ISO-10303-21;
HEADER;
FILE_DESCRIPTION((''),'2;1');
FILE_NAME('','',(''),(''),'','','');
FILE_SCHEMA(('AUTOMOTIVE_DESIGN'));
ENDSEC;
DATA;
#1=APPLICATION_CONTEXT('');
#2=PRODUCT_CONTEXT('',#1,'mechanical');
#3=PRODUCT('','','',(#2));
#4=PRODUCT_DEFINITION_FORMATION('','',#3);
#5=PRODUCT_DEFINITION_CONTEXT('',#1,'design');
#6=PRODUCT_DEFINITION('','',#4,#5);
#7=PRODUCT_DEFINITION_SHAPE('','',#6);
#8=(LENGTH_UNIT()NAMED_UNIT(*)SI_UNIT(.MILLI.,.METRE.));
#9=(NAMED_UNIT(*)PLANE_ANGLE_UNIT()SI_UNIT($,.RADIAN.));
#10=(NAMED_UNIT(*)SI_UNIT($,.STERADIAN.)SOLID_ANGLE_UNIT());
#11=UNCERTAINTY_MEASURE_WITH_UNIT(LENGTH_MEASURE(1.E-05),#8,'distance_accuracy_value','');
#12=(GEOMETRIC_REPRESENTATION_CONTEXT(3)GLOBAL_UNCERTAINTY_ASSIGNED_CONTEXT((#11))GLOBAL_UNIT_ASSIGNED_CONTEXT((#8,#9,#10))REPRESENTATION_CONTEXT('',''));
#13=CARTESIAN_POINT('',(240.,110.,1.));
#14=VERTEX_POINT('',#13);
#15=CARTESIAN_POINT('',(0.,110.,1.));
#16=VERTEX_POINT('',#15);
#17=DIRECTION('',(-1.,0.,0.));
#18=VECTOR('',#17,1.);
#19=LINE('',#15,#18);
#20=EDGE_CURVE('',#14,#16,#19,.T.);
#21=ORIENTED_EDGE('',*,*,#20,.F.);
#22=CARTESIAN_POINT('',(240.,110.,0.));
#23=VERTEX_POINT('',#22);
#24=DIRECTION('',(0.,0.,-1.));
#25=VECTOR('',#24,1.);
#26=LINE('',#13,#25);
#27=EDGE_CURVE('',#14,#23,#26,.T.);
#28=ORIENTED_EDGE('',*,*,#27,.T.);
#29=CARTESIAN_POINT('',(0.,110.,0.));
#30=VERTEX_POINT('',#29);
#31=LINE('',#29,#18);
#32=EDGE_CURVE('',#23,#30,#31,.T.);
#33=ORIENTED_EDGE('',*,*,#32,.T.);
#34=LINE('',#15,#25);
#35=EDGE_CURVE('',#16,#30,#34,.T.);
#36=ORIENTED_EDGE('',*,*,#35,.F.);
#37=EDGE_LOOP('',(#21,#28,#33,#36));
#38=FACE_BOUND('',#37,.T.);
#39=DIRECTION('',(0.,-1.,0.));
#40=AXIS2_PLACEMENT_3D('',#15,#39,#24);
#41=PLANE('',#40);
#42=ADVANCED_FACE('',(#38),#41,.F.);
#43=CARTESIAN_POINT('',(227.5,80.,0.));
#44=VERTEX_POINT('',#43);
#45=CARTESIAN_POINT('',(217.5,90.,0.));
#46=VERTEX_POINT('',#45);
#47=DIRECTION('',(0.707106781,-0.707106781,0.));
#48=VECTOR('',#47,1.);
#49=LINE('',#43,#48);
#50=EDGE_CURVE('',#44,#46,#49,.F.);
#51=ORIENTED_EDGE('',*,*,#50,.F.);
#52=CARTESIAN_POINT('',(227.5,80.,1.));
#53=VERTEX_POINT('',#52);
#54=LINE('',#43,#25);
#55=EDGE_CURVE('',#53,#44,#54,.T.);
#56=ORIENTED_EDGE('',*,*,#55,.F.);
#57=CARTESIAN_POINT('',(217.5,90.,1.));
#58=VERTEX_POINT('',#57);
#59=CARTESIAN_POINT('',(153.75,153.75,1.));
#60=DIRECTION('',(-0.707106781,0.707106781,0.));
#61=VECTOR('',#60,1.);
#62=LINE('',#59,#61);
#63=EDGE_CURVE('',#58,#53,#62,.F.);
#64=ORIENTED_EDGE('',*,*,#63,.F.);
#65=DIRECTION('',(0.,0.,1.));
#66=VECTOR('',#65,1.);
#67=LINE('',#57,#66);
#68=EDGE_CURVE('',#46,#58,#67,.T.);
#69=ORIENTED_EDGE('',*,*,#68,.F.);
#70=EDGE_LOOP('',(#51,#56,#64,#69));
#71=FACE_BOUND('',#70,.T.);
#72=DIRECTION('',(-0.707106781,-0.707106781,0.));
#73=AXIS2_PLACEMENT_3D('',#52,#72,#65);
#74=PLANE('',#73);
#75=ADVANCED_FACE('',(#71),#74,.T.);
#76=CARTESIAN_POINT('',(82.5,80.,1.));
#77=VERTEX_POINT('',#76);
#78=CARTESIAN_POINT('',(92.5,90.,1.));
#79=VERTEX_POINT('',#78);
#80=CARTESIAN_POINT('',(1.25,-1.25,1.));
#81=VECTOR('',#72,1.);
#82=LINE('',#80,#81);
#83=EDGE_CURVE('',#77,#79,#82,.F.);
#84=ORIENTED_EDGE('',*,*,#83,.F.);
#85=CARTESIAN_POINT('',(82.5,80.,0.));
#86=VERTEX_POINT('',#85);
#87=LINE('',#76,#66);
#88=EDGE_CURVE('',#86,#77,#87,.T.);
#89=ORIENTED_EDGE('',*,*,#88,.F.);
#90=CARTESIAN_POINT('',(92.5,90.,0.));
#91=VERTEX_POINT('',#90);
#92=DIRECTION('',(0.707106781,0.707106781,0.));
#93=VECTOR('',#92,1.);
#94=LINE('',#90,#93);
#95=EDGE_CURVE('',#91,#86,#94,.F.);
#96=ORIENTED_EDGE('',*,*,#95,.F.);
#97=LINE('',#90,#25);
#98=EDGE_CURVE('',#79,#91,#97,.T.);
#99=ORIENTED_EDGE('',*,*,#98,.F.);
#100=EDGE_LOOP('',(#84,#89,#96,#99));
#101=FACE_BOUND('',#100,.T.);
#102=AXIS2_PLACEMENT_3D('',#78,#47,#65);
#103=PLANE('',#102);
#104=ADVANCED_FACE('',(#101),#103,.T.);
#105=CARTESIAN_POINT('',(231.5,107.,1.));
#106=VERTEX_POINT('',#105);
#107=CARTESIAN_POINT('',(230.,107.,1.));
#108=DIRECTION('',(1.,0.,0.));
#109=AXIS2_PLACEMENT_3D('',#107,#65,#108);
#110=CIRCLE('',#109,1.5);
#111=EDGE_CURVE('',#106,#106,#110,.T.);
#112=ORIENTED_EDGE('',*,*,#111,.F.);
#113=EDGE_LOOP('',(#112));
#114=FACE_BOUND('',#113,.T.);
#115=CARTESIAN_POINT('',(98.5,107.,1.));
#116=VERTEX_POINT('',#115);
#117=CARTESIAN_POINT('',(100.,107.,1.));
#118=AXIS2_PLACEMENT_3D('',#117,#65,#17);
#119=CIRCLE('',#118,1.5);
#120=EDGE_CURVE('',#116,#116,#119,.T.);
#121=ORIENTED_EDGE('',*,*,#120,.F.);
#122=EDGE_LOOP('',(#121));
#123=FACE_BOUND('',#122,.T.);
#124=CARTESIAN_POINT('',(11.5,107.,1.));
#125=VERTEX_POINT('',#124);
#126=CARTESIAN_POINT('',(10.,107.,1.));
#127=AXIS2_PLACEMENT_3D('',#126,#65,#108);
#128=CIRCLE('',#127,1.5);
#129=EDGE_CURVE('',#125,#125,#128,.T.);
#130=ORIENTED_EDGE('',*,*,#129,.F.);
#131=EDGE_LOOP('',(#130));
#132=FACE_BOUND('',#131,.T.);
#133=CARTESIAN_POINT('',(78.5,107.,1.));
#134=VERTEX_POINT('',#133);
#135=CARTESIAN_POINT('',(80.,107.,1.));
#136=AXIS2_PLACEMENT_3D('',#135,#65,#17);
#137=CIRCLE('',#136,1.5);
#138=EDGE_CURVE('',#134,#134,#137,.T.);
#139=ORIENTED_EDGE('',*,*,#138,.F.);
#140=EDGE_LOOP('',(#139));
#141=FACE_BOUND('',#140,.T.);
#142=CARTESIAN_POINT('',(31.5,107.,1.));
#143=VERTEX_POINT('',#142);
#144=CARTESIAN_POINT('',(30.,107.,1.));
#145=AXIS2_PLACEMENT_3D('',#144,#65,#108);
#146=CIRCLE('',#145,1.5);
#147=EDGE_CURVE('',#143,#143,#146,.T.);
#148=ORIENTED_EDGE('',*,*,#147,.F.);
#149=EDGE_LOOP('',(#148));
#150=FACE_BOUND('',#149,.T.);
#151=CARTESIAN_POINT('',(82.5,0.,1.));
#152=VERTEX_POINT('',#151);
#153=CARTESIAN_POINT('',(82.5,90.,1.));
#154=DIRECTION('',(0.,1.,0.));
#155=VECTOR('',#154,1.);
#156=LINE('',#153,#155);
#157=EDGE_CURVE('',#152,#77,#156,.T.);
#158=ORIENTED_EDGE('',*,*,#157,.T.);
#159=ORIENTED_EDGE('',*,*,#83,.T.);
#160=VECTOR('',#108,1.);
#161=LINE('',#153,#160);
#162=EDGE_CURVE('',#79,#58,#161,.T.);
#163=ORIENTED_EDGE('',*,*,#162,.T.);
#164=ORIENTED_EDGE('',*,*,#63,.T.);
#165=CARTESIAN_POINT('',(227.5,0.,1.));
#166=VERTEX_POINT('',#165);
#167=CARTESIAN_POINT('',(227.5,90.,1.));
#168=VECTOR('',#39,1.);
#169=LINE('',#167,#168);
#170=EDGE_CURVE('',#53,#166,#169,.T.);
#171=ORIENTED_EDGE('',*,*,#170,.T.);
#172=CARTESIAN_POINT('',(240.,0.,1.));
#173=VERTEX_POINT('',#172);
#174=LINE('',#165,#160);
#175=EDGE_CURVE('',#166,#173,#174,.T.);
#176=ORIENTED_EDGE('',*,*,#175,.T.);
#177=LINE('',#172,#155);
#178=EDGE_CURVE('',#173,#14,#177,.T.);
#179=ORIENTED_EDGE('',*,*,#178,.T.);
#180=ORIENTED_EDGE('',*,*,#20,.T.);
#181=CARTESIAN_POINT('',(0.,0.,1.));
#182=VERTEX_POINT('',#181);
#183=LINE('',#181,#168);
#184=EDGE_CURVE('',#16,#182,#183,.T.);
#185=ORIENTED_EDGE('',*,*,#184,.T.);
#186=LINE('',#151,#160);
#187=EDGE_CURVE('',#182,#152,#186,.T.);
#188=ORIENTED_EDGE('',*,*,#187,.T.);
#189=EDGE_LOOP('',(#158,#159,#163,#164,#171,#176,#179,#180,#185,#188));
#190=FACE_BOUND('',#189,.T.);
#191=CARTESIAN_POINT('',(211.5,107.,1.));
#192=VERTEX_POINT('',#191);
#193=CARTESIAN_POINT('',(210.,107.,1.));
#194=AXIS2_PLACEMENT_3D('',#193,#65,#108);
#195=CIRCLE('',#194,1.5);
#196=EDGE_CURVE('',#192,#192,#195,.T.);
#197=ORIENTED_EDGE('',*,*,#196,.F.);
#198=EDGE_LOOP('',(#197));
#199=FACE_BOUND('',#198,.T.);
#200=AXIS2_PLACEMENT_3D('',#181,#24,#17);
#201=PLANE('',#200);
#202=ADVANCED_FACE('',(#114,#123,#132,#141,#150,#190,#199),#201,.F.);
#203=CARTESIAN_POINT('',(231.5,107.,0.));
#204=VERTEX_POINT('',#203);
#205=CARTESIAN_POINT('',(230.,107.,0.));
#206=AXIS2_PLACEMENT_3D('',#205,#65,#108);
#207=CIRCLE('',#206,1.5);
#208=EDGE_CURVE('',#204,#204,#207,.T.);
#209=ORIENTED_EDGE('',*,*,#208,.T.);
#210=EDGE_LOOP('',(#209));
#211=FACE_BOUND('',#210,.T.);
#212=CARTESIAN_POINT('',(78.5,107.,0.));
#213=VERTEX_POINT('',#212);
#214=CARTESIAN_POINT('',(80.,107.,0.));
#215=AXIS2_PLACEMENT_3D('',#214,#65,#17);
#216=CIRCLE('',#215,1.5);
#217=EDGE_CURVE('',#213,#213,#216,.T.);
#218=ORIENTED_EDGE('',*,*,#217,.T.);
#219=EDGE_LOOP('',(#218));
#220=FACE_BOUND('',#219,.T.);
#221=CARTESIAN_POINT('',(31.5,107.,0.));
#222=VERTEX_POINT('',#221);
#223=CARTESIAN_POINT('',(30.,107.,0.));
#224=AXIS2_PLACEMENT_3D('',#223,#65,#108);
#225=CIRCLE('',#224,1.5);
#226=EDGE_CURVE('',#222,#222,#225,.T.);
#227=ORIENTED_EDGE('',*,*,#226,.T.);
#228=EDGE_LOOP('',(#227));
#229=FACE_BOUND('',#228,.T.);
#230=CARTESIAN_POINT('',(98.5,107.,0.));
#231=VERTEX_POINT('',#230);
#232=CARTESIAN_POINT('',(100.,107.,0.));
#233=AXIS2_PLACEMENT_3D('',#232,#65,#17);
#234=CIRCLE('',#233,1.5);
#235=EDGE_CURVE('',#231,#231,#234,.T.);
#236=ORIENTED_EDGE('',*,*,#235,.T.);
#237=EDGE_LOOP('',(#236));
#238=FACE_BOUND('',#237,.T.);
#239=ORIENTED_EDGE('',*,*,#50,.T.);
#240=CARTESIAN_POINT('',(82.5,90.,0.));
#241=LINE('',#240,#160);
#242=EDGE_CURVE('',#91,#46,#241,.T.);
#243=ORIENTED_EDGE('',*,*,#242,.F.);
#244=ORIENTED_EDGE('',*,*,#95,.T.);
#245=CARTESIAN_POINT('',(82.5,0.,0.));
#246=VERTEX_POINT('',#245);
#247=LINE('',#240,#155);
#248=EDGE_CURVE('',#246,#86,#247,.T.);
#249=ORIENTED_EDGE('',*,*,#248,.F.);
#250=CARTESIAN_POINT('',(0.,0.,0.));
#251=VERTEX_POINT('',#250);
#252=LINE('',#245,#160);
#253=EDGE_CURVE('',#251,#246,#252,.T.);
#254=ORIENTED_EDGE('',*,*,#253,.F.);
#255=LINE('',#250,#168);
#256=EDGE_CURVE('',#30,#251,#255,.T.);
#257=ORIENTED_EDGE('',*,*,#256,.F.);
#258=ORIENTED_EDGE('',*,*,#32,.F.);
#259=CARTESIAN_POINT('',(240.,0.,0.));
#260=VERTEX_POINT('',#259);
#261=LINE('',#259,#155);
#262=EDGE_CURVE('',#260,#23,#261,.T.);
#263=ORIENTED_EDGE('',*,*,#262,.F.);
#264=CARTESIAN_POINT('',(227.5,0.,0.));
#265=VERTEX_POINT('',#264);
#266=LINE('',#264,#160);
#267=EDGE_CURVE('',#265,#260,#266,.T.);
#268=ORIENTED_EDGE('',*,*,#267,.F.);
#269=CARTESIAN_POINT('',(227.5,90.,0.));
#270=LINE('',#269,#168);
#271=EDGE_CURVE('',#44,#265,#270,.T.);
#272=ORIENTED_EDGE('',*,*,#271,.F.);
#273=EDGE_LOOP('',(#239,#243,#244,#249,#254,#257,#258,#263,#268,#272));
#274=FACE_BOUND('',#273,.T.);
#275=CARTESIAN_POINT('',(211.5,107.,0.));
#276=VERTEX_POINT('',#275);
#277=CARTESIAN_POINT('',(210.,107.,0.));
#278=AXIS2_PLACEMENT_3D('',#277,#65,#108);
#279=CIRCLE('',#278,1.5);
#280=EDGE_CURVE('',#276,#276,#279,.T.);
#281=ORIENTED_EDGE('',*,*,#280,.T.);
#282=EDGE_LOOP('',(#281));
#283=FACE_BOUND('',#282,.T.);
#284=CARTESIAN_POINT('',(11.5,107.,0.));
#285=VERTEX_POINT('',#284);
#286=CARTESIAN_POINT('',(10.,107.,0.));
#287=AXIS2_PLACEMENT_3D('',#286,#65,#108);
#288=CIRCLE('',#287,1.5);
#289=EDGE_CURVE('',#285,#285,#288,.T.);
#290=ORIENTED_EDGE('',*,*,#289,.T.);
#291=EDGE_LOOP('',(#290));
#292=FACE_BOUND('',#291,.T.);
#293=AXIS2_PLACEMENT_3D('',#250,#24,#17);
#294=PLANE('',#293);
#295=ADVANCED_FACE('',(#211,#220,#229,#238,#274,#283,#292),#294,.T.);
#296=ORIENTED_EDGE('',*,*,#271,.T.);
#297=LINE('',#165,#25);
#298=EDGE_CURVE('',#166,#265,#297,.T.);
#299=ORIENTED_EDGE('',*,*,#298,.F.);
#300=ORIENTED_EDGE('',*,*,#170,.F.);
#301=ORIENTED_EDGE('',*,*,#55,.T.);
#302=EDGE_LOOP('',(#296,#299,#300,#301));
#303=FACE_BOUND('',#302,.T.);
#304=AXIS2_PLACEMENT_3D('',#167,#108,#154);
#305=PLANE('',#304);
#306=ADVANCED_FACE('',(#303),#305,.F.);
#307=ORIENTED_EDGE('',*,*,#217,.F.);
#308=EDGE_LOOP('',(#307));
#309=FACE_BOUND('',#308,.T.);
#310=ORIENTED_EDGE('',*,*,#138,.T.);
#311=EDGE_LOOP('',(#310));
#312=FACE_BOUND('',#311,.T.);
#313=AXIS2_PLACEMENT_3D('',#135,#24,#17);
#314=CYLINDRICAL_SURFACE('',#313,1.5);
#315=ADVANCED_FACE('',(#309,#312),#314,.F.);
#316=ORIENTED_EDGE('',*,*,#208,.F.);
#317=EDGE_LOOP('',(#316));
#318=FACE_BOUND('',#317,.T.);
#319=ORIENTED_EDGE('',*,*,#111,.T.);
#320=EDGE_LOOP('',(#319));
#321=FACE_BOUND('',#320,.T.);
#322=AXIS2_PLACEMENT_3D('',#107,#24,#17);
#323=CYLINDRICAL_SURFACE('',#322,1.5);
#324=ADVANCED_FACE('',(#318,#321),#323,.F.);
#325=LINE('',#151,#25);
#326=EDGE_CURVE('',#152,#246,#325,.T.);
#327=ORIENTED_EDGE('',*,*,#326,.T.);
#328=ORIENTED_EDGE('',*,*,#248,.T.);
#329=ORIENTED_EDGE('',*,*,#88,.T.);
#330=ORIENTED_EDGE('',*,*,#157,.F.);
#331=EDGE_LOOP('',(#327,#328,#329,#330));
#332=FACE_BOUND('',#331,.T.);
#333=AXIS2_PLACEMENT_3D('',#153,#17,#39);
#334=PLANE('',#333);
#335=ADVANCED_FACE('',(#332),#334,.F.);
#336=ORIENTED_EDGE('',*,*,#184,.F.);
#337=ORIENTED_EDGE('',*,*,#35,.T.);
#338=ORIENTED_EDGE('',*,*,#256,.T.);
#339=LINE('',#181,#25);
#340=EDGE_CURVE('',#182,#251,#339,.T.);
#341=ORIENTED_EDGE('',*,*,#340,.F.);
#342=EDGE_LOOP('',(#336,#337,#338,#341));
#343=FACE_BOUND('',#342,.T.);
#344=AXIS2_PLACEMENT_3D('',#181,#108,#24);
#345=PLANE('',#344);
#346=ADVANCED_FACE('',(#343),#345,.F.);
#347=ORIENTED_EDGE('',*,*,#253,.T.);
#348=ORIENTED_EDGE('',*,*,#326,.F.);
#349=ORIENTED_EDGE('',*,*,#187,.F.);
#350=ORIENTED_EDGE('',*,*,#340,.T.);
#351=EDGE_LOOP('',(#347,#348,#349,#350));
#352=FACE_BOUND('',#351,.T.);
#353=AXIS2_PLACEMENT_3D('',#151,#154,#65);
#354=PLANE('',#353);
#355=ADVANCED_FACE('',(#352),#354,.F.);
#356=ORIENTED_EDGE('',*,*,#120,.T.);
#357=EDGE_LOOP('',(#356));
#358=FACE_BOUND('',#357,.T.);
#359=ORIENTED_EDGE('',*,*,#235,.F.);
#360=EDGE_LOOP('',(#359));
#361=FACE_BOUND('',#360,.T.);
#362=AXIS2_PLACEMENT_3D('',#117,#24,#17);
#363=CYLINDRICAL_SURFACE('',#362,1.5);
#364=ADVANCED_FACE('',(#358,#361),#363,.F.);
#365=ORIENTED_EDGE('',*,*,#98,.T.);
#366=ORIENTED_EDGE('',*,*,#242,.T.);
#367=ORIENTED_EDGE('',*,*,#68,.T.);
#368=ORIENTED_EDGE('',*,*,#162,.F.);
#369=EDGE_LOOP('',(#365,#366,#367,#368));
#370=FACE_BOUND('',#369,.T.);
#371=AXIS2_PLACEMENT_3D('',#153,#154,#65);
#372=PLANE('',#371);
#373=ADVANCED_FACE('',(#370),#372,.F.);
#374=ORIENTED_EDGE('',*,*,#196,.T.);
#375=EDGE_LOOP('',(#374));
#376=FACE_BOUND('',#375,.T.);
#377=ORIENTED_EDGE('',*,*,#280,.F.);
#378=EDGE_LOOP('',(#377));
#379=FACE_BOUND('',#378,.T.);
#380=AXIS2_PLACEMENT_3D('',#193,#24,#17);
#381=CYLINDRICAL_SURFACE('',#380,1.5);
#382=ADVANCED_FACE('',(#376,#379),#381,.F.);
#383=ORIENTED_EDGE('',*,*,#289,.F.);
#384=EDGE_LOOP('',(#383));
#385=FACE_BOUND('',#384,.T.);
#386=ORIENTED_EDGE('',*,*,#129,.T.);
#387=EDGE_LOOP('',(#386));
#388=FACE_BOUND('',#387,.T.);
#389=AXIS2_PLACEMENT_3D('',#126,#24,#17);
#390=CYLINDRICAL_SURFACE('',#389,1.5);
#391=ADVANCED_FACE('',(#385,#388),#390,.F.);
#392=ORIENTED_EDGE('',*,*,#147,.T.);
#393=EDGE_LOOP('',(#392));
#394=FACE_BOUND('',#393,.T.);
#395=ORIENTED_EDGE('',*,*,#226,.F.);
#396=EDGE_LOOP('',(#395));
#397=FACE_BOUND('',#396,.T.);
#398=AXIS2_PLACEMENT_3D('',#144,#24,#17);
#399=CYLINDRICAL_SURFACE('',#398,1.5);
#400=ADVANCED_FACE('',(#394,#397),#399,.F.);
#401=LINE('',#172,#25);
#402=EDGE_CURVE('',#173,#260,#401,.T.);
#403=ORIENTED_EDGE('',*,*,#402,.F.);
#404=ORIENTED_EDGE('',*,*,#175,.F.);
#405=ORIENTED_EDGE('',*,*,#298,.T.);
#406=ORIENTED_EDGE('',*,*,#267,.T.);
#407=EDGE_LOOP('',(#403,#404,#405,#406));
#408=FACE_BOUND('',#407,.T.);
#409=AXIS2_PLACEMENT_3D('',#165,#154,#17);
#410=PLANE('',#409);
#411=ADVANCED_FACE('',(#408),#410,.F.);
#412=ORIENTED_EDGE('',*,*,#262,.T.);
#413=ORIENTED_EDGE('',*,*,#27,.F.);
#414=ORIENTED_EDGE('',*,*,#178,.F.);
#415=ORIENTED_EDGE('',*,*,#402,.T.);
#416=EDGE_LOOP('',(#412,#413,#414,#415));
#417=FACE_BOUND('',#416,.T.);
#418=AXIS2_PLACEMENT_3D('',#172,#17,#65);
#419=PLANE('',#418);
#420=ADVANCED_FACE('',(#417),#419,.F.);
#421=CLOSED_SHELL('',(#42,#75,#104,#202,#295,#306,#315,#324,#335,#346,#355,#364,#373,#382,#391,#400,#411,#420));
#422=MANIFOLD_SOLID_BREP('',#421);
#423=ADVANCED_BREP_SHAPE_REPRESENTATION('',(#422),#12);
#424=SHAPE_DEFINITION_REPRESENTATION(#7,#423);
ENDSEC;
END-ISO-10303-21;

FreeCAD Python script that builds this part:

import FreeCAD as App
import Part
import Sketcher

V = App.Vector
Q = App.Units.Quantity


def edges_at(feature, points):
    """Names of the edges that pass closest to the given points."""
    edges = feature.Shape.Edges
    near = lambda p: min(range(len(edges)), key=lambda i: edges[i].distToShape(Part.Vertex(*p))[0])
    return sorted({f"Edge{near(p) + 1}" for p in points})


def add_polygon(sketch, points):
    """Adds a closed chain of lines whose ends are joined by coincident constraints."""
    first, n = sketch.GeometryCount, len(points)
    for a, b in zip(points, points[1:] + points[:1]):
        sketch.addGeometry(Part.LineSegment(App.Vector(*a, 0), App.Vector(*b, 0)), False)
    for i in range(n):
        sketch.addConstraint(Sketcher.Constraint("Coincident", first + i, 2, first + (i + 1) % n, 1))

doc = App.newDocument("Part")
body = doc.addObject("PartDesign::Body", "Body")

# Sketch on XY plane
sketch1 = body.newObject("Sketcher::SketchObject", "Sketch")
sketch1.AttachmentSupport = (doc.getObject("XY_Plane"), [""])
sketch1.MapMode = "FlatFace"
add_polygon(sketch1, [(0, 110), (0, 0), (82.5, 0), (82.5, 90), (227.5, 90), (227.5, 0), (240, 0), (240, 110)])  # lines 0-7
sketch1.addGeometry(Part.Circle(V(230, 107, 0), V(0, 0, 1), 1.5), False)  # 8
sketch1.addGeometry(Part.Circle(V(210, 107, 0), V(0, 0, 1), 1.5), False)  # 9
sketch1.addGeometry(Part.Circle(V(100, 107, 0), V(0, 0, 1), 1.5), False)  # 10
sketch1.addGeometry(Part.Circle(V(80, 107, 0), V(0, 0, 1), 1.5), False)  # 11
sketch1.addGeometry(Part.Circle(V(30, 107, 0), V(0, 0, 1), 1.5), False)  # 12
sketch1.addGeometry(Part.Circle(V(10, 107, 0), V(0, 0, 1), 1.5), False)  # 13
sketch1.addConstraint(Sketcher.Constraint("Vertical", 0))
sketch1.addConstraint(Sketcher.Constraint("Horizontal", 1))
sketch1.addConstraint(Sketcher.Constraint("Vertical", 2))
sketch1.addConstraint(Sketcher.Constraint("Horizontal", 3))
sketch1.addConstraint(Sketcher.Constraint("Vertical", 4))
sketch1.addConstraint(Sketcher.Constraint("Horizontal", 5))
sketch1.addConstraint(Sketcher.Constraint("Vertical", 6))
sketch1.addConstraint(Sketcher.Constraint("Horizontal", 7))
sketch1.addConstraint(Sketcher.Constraint("Coincident", 0, 2, -1, 1))
sketch1.addConstraint(Sketcher.Constraint("Equal", 8, 9))
sketch1.addConstraint(Sketcher.Constraint("Equal", 9, 10))
sketch1.addConstraint(Sketcher.Constraint("Equal", 10, 11))
sketch1.addConstraint(Sketcher.Constraint("Equal", 11, 12))
sketch1.addConstraint(Sketcher.Constraint("Equal", 12, 13))
sketch1.addConstraint(Sketcher.Constraint("PointOnObject", 4, 2, -1))
sketch1.addConstraint(Sketcher.Constraint("Horizontal", 8, 3, 9, 3))
sketch1.addConstraint(Sketcher.Constraint("Horizontal", 9, 3, 10, 3))
sketch1.addConstraint(Sketcher.Constraint("Horizontal", 10, 3, 11, 3))
sketch1.addConstraint(Sketcher.Constraint("Horizontal", 11, 3, 12, 3))
sketch1.addConstraint(Sketcher.Constraint("Horizontal", 12, 3, 13, 3))
sketch1.addConstraint(Sketcher.Constraint("Diameter", 8, Q("3 mm")))
sketch1.addConstraint(Sketcher.Constraint("DistanceX", 3, 1, 3, 2, Q("145 mm")))
sketch1.addConstraint(Sketcher.Constraint("DistanceX", 7, 2, 7, 1, Q("240 mm")))
sketch1.addConstraint(Sketcher.Constraint("DistanceY", 0, 2, 0, 1, Q("110 mm")))
sketch1.addConstraint(Sketcher.Constraint("DistanceY", 2, 1, 2, 2, Q("90 mm")))
sketch1.addConstraint(Sketcher.Constraint("DistanceX", 1, 1, 1, 2, Q("82.5 mm")))
sketch1.addConstraint(Sketcher.Constraint("DistanceX", -1, 1, 8, 3, Q("230 mm")))
sketch1.addConstraint(Sketcher.Constraint("DistanceY", -1, 1, 8, 3, Q("107 mm")))
sketch1.addConstraint(Sketcher.Constraint("DistanceX", -1, 1, 9, 3, Q("210 mm")))
sketch1.addConstraint(Sketcher.Constraint("DistanceX", -1, 1, 10, 3, Q("100 mm")))
sketch1.addConstraint(Sketcher.Constraint("DistanceX", -1, 1, 11, 3, Q("80 mm")))
sketch1.addConstraint(Sketcher.Constraint("DistanceX", -1, 1, 12, 3, Q("30 mm")))
sketch1.addConstraint(Sketcher.Constraint("DistanceX", -1, 1, 13, 3, Q("10 mm")))
pad1 = body.newObject("PartDesign::Pad", "Pad")
pad1.Profile = sketch1
pad1.Length = 1
doc.recompute()

chamfer = body.newObject("PartDesign::Chamfer", "Chamfer")
chamfer.Base = (pad1, edges_at(pad1, [(227.5, 90, 0.5), (82.5, 90, 0.5)]))
chamfer.Size = 10

doc.recompute()
